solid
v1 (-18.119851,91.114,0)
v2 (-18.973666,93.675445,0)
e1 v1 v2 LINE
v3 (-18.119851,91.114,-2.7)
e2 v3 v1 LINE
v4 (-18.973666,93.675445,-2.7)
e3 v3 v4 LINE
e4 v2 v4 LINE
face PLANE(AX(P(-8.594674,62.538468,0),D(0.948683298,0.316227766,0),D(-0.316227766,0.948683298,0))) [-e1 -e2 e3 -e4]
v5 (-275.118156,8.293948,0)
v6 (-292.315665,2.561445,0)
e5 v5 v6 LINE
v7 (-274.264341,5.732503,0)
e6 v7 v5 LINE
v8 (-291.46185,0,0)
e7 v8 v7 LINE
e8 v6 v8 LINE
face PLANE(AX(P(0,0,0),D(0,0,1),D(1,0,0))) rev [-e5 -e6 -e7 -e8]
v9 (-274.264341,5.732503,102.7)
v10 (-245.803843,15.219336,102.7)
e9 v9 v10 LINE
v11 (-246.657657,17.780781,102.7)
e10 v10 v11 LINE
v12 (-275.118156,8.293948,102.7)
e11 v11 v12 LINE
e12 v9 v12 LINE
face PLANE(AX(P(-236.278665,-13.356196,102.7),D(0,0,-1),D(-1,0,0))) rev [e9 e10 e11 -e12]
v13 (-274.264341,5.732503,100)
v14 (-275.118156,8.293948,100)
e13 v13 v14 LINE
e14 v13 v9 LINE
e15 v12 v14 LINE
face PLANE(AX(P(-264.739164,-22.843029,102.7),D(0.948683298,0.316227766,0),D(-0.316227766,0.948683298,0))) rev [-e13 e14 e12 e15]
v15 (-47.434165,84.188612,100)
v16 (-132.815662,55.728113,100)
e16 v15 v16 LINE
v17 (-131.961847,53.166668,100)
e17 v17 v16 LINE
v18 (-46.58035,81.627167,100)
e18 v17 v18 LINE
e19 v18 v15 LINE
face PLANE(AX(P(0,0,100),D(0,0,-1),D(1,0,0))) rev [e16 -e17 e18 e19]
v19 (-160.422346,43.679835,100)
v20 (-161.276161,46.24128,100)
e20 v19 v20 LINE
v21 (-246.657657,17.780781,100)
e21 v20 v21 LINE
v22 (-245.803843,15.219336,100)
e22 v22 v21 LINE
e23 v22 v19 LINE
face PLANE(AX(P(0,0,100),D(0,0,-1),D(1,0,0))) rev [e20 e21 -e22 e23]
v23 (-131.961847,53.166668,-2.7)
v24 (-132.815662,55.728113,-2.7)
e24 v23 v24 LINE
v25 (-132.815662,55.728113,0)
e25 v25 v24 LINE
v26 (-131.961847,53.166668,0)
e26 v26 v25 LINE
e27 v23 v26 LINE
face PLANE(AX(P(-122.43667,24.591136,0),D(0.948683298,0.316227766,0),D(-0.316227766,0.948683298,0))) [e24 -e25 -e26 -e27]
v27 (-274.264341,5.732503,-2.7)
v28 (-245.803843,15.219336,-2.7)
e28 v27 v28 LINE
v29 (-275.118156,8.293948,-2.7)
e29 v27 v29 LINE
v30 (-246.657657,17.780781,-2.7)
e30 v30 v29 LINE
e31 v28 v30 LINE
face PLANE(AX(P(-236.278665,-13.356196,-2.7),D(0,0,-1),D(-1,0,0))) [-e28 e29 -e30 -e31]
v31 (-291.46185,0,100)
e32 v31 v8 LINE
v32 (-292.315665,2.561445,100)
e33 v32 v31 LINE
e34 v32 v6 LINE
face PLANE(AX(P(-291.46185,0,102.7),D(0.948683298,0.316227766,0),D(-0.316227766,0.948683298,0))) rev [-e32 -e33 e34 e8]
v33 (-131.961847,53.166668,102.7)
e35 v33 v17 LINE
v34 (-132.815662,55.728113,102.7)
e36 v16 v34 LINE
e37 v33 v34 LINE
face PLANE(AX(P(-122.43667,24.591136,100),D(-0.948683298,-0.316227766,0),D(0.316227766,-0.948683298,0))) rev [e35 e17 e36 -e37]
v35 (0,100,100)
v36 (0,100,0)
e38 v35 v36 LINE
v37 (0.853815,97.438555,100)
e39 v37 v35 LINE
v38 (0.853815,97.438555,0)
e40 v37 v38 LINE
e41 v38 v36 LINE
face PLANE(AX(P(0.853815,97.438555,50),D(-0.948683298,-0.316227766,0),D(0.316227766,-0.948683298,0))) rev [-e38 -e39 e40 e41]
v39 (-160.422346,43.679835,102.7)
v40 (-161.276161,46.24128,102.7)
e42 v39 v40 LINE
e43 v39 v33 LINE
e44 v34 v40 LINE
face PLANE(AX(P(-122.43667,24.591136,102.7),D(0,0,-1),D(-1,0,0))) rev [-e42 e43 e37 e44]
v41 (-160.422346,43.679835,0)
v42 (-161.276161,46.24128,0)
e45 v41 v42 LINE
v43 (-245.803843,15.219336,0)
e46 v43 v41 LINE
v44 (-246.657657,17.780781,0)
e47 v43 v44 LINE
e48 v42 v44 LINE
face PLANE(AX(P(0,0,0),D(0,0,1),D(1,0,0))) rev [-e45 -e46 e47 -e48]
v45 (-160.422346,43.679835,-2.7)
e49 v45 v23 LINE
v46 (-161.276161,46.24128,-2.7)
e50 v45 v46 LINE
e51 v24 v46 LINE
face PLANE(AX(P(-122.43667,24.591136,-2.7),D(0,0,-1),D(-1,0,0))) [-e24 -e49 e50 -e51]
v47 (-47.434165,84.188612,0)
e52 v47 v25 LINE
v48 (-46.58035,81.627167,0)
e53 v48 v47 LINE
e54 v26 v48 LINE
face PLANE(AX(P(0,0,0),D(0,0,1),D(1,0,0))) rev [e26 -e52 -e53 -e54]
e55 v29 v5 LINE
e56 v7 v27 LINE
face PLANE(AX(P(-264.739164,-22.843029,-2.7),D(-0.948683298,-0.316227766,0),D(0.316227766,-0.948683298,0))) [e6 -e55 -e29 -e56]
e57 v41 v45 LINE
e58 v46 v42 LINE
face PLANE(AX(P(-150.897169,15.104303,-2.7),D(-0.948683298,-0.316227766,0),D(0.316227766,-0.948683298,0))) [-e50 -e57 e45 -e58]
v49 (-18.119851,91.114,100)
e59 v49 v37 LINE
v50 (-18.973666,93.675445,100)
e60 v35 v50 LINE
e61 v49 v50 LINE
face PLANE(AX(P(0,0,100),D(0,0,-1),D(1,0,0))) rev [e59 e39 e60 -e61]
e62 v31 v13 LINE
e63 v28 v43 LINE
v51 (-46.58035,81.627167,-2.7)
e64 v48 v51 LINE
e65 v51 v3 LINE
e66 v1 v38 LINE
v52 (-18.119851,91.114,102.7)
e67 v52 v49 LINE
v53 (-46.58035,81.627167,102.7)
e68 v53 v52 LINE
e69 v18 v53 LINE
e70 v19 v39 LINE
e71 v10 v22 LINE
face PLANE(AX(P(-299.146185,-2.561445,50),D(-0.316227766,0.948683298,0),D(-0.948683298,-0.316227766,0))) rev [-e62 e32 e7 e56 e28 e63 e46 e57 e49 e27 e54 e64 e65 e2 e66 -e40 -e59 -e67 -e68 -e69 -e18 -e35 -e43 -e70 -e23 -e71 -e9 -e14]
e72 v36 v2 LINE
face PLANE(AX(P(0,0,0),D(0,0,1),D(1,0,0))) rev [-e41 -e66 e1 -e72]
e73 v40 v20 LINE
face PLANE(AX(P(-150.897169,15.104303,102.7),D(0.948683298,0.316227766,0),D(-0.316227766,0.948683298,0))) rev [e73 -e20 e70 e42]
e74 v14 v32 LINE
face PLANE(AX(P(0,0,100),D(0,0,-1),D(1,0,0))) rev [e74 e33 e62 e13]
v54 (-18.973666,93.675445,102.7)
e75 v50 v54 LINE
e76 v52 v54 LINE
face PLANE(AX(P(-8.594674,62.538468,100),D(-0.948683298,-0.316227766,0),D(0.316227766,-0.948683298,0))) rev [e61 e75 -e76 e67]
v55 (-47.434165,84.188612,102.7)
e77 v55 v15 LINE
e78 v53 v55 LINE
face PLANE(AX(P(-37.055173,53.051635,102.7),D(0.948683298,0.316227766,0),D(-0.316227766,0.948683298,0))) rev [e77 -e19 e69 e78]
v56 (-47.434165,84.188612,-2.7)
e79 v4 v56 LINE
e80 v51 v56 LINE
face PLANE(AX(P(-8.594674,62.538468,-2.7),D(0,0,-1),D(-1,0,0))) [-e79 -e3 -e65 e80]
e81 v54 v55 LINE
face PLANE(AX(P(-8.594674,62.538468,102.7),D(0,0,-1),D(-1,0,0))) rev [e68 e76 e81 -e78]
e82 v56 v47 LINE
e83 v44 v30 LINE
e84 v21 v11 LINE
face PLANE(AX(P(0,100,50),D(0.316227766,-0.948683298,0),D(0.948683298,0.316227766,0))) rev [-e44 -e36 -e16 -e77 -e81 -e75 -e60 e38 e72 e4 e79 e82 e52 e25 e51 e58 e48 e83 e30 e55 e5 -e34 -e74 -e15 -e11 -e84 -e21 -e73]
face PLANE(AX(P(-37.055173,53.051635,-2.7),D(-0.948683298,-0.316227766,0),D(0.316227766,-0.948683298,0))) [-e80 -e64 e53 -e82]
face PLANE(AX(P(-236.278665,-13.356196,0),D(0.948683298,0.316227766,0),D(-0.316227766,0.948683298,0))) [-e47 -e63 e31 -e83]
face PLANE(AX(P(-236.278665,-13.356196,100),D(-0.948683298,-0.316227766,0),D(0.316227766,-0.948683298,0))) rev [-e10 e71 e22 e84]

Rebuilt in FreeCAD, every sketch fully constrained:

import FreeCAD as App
import Part
import Sketcher

V = App.Vector

doc = App.newDocument("Part")
body = doc.addObject("PartDesign::Body", "Body")

sketch1 = doc.addObject("Sketcher::SketchObject", "Sketch")
body.addObject(sketch1)
sketch1.AttachmentSupport = (doc.XY_Plane, [""])
sketch1.MapMode = "FlatFace"
sketch1.addGeometry([
    Part.LineSegment(V(-300, 0, 0), V(-299.146185, -2.561445, 0)),
    Part.LineSegment(V(-299.146185, -2.561445, 0), V(0.853815, 97.438555, 0)),
    Part.LineSegment(V(0.853815, 97.438555, 0), V(0, 100, 0)),
    Part.LineSegment(V(0, 100, 0), V(-300, 0, 0)),
], False)
sketch1.addConstraint([
    Sketcher.Constraint("Coincident", 0, 2, 1, 1),
    Sketcher.Constraint("Coincident", 1, 2, 2, 1),
    Sketcher.Constraint("Coincident", 2, 2, 3, 1),
    Sketcher.Constraint("Coincident", 3, 2, 0, 1),
    Sketcher.Constraint("PointOnObject", 2, 2, -2),
    Sketcher.Constraint("PointOnObject", 3, 2, -1),
    Sketcher.Constraint("Perpendicular", 0, 1),
    Sketcher.Constraint("Perpendicular", 1, 2),
    Sketcher.Constraint("Perpendicular", 2, 3),
    Sketcher.Constraint("DistanceY", -1, 1, 2, 2, 100.0),
    Sketcher.Constraint("DistanceX", 3, 2, -1, 1, 300.0),
    Sketcher.Constraint("Distance", 0, 2.7),
])
pad1 = doc.addObject("PartDesign::Pad", "Pad")
body.addObject(pad1)
pad1.Profile = sketch1
pad1.Length = 50

sketch2 = doc.addObject("Sketcher::SketchObject", "Sketch001")
body.addObject(sketch2)
sketch2.Placement = App.Placement(V(-30, 90, 0), App.Rotation(V(0.948683298, 0.316227766, 0), V(0, 0, -1), V(-0.316227766, 0.948683298, 0), "ZXY"))
sketch2.addGeometry([
    Part.LineSegment(V(-18.377223, 2.7, 0), V(-18.377223, 0, 0)),
    Part.LineSegment(V(-18.377223, 0, 0), V(11.622777, 0, 0)),
    Part.LineSegment(V(11.622777, 0, 0), V(11.622777, 2.7, 0)),
    Part.LineSegment(V(11.622777, 2.7, 0), V(-18.377223, 2.7, 0)),
    Part.LineSegment(V(-138.377223, 2.7, 0), V(-138.377223, 0, 0)),
    Part.LineSegment(V(-138.377223, 0, 0), V(-108.377223, 0, 0)),
    Part.LineSegment(V(-108.377223, 0, 0), V(-108.377223, 2.7, 0)),
    Part.LineSegment(V(-108.377223, 2.7, 0), V(-138.377223, 2.7, 0)),
    Part.LineSegment(V(-258.377223, 2.7, 0), V(-258.377223, 0, 0)),
    Part.LineSegment(V(-258.377223, 0, 0), V(-228.377223, 0, 0)),
    Part.LineSegment(V(-228.377223, 0, 0), V(-228.377223, 2.7, 0)),
    Part.LineSegment(V(-228.377223, 2.7, 0), V(-258.377223, 2.7, 0)),
], False)
sketch2.addConstraint([
    Sketcher.Constraint("Coincident", 0, 2, 1, 1),
    Sketcher.Constraint("Coincident", 1, 2, 2, 1),
    Sketcher.Constraint("Coincident", 2, 2, 3, 1),
    Sketcher.Constraint("Coincident", 3, 2, 0, 1),
    Sketcher.Constraint("Coincident", 4, 2, 5, 1),
    Sketcher.Constraint("Coincident", 5, 2, 6, 1),
    Sketcher.Constraint("Coincident", 6, 2, 7, 1),
    Sketcher.Constraint("Coincident", 7, 2, 4, 1),
    Sketcher.Constraint("Coincident", 8, 2, 9, 1),
    Sketcher.Constraint("Coincident", 9, 2, 10, 1),
    Sketcher.Constraint("Coincident", 10, 2, 11, 1),
    Sketcher.Constraint("Coincident", 11, 2, 8, 1),
    Sketcher.Constraint("Vertical", 0),
    Sketcher.Constraint("Horizontal", 1),
    Sketcher.Constraint("Vertical", 2),
    Sketcher.Constraint("Horizontal", 3),
    Sketcher.Constraint("Vertical", 4),
    Sketcher.Constraint("Horizontal", 5),
    Sketcher.Constraint("Vertical", 6),
    Sketcher.Constraint("Horizontal", 7),
    Sketcher.Constraint("Vertical", 8),
    Sketcher.Constraint("Horizontal", 9),
    Sketcher.Constraint("Vertical", 10),
    Sketcher.Constraint("Horizontal", 11),
    Sketcher.Constraint("PointOnObject", 0, 2, -1),
    Sketcher.Constraint("PointOnObject", 4, 2, -1),
    Sketcher.Constraint("PointOnObject", 8, 2, -1),
    Sketcher.Constraint("Horizontal", 3, 2, 6, 2),
    Sketcher.Constraint("Horizontal", 7, 2, 10, 2),
    Sketcher.Constraint("Equal", 3, 5),
    Sketcher.Constraint("Equal", 7, 9),
    Sketcher.Constraint("DistanceX", 1, 1, 1, 2, 30.0),
    Sketcher.Constraint("DistanceY", 0, 2, 0, 1, 2.7),
    Sketcher.Constraint("DistanceX", 4, 2, 0, 2, 120.0),
    Sketcher.Constraint("DistanceX", 8, 2, 4, 2, 120.0),
    Sketcher.Constraint("DistanceX", 0, 2, -1, 1, 18.377223),
])
pad2 = doc.addObject("PartDesign::Pad", "Pad001")
body.addObject(pad2)
pad2.Profile = sketch2
pad2.Length = 2.7
pad2.Reversed = True
doc.recompute()

datumplane = doc.addObject("PartDesign::Plane", "DatumPlane")
body.addObject(datumplane)
datumplane.AttachmentSupport = (doc.XY_Plane, [""])
datumplane.MapMode = "FlatFace"
datumplane.AttachmentOffset = App.Placement(V(0, 0, 50), App.Rotation())
mirrored = doc.addObject("PartDesign::Mirrored", "Mirrored")
body.addObject(mirrored)
mirrored.Originals = [pad1]
mirrored.MirrorPlane = (datumplane, [""])
body.Tip = mirrored
doc.recompute()

datumplane2 = doc.addObject("PartDesign::Plane", "DatumPlane001")
body.addObject(datumplane2)
datumplane2.AttachmentSupport = (doc.XY_Plane, [""])
datumplane2.MapMode = "FlatFace"
datumplane2.AttachmentOffset = App.Placement(V(0, 0, 50), App.Rotation())
mirrored2 = doc.addObject("PartDesign::Mirrored", "Mirrored001")
body.addObject(mirrored2)
mirrored2.Originals = [pad2]
mirrored2.MirrorPlane = (datumplane2, [""])
body.Tip = mirrored2

sketch3 = doc.addObject("Sketcher::SketchObject", "Sketch002")
body.addObject(sketch3)
sketch3.Placement = App.Placement(V(-30, 90, 0), App.Rotation(V(0.948683298, 0.316227766, 0), V(0, 0, -1), V(-0.316227766, 0.948683298, 0), "ZXY"))
sketch3.addGeometry([
    Part.LineSegment(V(-284.604989, 0, 0), V(-284.604989, -100, 0)),
    Part.LineSegment(V(-284.604989, -100, 0), V(-281.861492, -100, 0)),
    Part.LineSegment(V(-281.861492, -100, 0), V(-281.861492, 0, 0)),
    Part.LineSegment(V(-281.861492, 0, 0), V(-284.604989, 0, 0)),
], False)
sketch3.addConstraint([
    Sketcher.Constraint("Coincident", 0, 2, 1, 1),
    Sketcher.Constraint("Coincident", 1, 2, 2, 1),
    Sketcher.Constraint("Coincident", 2, 2, 3, 1),
    Sketcher.Constraint("Coincident", 3, 2, 0, 1),
    Sketcher.Constraint("Vertical", 0),
    Sketcher.Constraint("Horizontal", 1),
    Sketcher.Constraint("Vertical", 2),
    Sketcher.Constraint("Horizontal", 3),
    Sketcher.Constraint("PointOnObject", 2, 2, -1),
    Sketcher.Constraint("DistanceY", 0, 2, 0, 1, 100.0),
    Sketcher.Constraint("DistanceX", 1, 1, 1, 2, 2.743498),
    Sketcher.Constraint("DistanceX", 0, 2, -1, 1, 284.604989),
])
pocket1 = doc.addObject("PartDesign::Pocket", "Pocket")
body.addObject(pocket1)
pocket1.Profile = sketch3
pocket1.Length = 50

sketch4 = doc.addObject("Sketcher::SketchObject", "Sketch003")
body.addObject(sketch4)
sketch4.AttachmentSupport = (doc.XY_Plane, [""])
sketch4.MapMode = "FlatFace"
sketch4.addGeometry([
    Part.LineSegment(V(-296.543474, -1.693875, 0), V(-297.108099, 0, 0)),
    Part.LineSegment(V(-297.108099, 0, 0), V(-297.397289, 0.86757, 0)),
    Part.LineSegment(V(-297.397289, 0.86757, 0), V(-292.315665, 2.561445, 0)),
    Part.LineSegment(V(-292.315665, 2.561445, 0), V(-291.46185, 0, 0)),
    Part.LineSegment(V(-291.46185, 0, 0), V(-296.543474, -1.693875, 0)),
], False)
sketch4.addConstraint([
    Sketcher.Constraint("Coincident", 0, 2, 1, 1),
    Sketcher.Constraint("Coincident", 1, 2, 2, 1),
    Sketcher.Constraint("Coincident", 2, 2, 3, 1),
    Sketcher.Constraint("Coincident", 3, 2, 4, 1),
    Sketcher.Constraint("Coincident", 4, 2, 0, 1),
    Sketcher.Constraint("PointOnObject", 0, 2, -1),
    Sketcher.Constraint("PointOnObject", 3, 2, -1),
    Sketcher.Constraint("Parallel", 0, 1),
    Sketcher.Constraint("Perpendicular", 1, 2),
    Sketcher.Constraint("Perpendicular", 2, 3),
    Sketcher.Constraint("Perpendicular", 3, 4),
    Sketcher.Constraint("Distance", 3, 2.7),
    Sketcher.Constraint("Distance", 0, 1.785501),
    Sketcher.Constraint("DistanceX", 0, 2, -1, 1, 297.108099),
    Sketcher.Constraint("DistanceX", 1, 2, -1, 1, 297.397289),
])
pocket2 = doc.addObject("PartDesign::Pocket", "Pocket001")
body.addObject(pocket2)
pocket2.Profile = sketch4
pocket2.Type = "ThroughAll"
pocket2.Reversed = True

doc.recompute()
